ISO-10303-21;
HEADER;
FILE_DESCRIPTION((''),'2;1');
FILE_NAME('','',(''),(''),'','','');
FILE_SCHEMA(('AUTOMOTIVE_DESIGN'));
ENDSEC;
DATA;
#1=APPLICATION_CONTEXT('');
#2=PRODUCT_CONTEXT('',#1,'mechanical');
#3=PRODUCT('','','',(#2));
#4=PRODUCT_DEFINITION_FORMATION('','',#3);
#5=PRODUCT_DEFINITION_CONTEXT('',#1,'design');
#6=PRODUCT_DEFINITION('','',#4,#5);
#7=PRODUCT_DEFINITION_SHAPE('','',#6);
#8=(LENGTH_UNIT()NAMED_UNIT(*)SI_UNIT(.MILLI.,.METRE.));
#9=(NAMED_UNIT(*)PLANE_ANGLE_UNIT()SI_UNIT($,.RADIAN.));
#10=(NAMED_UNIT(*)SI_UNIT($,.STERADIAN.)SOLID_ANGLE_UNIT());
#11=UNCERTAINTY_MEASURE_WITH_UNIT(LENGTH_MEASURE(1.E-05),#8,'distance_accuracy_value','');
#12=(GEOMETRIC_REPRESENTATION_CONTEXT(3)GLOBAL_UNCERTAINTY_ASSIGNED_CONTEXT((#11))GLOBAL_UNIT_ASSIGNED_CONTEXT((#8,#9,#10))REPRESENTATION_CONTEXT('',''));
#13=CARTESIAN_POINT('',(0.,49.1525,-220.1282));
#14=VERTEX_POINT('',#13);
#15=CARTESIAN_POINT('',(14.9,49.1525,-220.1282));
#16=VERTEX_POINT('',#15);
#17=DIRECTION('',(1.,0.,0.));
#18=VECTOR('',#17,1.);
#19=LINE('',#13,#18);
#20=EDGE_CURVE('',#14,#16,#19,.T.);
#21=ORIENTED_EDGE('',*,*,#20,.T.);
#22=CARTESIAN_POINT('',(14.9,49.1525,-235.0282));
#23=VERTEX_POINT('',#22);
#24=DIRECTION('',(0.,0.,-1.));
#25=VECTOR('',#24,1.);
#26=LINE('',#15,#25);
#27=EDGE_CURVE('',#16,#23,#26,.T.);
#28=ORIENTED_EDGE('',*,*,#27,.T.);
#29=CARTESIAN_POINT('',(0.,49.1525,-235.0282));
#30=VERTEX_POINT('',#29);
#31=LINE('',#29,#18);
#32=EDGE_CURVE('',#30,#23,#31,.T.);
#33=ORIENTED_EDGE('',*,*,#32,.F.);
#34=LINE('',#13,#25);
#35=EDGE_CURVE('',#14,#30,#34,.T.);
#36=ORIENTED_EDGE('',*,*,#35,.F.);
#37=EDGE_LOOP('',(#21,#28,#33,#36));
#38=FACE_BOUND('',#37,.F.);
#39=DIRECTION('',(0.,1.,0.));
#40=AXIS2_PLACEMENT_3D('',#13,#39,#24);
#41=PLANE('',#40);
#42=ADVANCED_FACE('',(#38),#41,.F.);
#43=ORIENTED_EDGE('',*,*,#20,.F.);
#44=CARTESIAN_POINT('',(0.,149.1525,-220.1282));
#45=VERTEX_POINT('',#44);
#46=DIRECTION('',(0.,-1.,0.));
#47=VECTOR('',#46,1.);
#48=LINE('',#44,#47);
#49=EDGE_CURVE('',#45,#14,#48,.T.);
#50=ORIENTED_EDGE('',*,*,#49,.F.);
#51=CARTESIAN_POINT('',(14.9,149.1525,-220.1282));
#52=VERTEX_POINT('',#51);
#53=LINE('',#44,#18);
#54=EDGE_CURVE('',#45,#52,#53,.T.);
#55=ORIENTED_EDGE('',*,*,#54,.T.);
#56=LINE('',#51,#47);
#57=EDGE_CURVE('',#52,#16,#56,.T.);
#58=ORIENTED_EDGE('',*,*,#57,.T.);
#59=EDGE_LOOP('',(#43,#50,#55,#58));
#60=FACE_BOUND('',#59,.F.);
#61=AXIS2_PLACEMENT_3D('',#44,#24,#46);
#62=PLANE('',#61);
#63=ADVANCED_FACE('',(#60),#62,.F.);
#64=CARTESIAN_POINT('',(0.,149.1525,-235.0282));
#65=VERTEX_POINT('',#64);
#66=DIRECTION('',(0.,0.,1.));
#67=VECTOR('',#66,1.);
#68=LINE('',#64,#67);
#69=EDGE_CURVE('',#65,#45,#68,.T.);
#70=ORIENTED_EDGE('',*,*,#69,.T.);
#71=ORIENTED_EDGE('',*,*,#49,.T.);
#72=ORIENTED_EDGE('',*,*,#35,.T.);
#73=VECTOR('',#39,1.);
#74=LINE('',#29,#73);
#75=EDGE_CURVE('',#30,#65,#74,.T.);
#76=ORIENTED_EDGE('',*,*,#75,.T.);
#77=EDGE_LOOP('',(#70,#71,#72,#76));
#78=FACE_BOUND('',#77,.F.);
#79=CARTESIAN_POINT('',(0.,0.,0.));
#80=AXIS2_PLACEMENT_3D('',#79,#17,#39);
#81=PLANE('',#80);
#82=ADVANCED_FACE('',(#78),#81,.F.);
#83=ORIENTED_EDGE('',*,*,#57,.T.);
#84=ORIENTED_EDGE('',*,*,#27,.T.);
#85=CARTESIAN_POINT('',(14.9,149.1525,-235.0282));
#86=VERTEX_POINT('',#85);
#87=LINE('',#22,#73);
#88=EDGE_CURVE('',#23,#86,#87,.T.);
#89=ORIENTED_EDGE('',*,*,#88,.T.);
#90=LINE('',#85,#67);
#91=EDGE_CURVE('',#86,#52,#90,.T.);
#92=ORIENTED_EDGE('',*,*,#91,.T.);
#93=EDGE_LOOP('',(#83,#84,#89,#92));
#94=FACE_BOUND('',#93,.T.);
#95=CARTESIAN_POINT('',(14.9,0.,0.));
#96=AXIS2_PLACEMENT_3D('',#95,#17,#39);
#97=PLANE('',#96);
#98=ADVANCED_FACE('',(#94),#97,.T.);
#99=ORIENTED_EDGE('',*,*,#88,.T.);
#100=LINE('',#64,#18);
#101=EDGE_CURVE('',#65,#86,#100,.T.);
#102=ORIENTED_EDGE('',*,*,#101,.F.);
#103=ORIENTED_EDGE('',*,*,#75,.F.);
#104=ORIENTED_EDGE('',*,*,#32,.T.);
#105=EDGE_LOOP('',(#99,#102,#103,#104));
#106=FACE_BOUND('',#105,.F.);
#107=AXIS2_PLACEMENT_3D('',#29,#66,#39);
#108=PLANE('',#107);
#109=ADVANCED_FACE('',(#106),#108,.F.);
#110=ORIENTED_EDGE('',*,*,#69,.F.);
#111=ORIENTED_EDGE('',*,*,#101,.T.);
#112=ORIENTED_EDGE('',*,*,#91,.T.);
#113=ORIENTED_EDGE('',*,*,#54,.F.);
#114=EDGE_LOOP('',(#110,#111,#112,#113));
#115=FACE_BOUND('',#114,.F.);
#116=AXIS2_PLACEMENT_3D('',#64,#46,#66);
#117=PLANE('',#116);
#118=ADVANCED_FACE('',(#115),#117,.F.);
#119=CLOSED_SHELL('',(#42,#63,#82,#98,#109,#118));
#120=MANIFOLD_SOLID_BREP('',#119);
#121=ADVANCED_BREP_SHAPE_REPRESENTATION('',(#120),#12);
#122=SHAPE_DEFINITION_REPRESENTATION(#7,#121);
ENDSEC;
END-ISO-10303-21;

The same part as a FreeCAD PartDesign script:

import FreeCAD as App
import Part
import Sketcher
Q = App.Units.Quantity

doc = App.newDocument("Part")
body = doc.addObject("PartDesign::Body", "Body")

# Sketch on YZ plane
sketch1 = body.newObject("Sketcher::SketchObject", "Sketch")
sketch1.AttachmentSupport = (doc.getObject("YZ_Plane"), [""])
sketch1.MapMode = "FlatFace"
sketch1.addGeometry([
    Part.LineSegment(App.Vector(49, -220, 0), App.Vector(49, -235, 0)),
    Part.LineSegment(App.Vector(49, -235, 0), App.Vector(149, -235, 0)),
    Part.LineSegment(App.Vector(149, -235, 0), App.Vector(149, -220, 0)),
    Part.LineSegment(App.Vector(149, -220, 0), App.Vector(49, -220, 0)),
], False)
sketch1.addConstraint([
    Sketcher.Constraint("Coincident", 0, 2, 1, 1),
    Sketcher.Constraint("Coincident", 1, 2, 2, 1),
    Sketcher.Constraint("Coincident", 2, 2, 3, 1),
    Sketcher.Constraint("Coincident", 3, 2, 0, 1),
    Sketcher.Constraint("Vertical", 0),
    Sketcher.Constraint("Horizontal", 1),
    Sketcher.Constraint("Vertical", 2),
    Sketcher.Constraint("Horizontal", 3),
    Sketcher.Constraint("DistanceX", 1, 1, 1, 2, Q("100 mm")),
    Sketcher.Constraint("DistanceY", 0, 2, 0, 1, Q("14.9 mm")),
    Sketcher.Constraint("DistanceX", -1, 1, 0, 2, Q("49.1525 mm")),
    Sketcher.Constraint("DistanceY", 0, 2, -1, 1, Q("235.0282 mm")),
])
pad1 = body.newObject("PartDesign::Pad", "Pad")
pad1.Profile = sketch1
pad1.Length = 14.9

doc.recompute()
